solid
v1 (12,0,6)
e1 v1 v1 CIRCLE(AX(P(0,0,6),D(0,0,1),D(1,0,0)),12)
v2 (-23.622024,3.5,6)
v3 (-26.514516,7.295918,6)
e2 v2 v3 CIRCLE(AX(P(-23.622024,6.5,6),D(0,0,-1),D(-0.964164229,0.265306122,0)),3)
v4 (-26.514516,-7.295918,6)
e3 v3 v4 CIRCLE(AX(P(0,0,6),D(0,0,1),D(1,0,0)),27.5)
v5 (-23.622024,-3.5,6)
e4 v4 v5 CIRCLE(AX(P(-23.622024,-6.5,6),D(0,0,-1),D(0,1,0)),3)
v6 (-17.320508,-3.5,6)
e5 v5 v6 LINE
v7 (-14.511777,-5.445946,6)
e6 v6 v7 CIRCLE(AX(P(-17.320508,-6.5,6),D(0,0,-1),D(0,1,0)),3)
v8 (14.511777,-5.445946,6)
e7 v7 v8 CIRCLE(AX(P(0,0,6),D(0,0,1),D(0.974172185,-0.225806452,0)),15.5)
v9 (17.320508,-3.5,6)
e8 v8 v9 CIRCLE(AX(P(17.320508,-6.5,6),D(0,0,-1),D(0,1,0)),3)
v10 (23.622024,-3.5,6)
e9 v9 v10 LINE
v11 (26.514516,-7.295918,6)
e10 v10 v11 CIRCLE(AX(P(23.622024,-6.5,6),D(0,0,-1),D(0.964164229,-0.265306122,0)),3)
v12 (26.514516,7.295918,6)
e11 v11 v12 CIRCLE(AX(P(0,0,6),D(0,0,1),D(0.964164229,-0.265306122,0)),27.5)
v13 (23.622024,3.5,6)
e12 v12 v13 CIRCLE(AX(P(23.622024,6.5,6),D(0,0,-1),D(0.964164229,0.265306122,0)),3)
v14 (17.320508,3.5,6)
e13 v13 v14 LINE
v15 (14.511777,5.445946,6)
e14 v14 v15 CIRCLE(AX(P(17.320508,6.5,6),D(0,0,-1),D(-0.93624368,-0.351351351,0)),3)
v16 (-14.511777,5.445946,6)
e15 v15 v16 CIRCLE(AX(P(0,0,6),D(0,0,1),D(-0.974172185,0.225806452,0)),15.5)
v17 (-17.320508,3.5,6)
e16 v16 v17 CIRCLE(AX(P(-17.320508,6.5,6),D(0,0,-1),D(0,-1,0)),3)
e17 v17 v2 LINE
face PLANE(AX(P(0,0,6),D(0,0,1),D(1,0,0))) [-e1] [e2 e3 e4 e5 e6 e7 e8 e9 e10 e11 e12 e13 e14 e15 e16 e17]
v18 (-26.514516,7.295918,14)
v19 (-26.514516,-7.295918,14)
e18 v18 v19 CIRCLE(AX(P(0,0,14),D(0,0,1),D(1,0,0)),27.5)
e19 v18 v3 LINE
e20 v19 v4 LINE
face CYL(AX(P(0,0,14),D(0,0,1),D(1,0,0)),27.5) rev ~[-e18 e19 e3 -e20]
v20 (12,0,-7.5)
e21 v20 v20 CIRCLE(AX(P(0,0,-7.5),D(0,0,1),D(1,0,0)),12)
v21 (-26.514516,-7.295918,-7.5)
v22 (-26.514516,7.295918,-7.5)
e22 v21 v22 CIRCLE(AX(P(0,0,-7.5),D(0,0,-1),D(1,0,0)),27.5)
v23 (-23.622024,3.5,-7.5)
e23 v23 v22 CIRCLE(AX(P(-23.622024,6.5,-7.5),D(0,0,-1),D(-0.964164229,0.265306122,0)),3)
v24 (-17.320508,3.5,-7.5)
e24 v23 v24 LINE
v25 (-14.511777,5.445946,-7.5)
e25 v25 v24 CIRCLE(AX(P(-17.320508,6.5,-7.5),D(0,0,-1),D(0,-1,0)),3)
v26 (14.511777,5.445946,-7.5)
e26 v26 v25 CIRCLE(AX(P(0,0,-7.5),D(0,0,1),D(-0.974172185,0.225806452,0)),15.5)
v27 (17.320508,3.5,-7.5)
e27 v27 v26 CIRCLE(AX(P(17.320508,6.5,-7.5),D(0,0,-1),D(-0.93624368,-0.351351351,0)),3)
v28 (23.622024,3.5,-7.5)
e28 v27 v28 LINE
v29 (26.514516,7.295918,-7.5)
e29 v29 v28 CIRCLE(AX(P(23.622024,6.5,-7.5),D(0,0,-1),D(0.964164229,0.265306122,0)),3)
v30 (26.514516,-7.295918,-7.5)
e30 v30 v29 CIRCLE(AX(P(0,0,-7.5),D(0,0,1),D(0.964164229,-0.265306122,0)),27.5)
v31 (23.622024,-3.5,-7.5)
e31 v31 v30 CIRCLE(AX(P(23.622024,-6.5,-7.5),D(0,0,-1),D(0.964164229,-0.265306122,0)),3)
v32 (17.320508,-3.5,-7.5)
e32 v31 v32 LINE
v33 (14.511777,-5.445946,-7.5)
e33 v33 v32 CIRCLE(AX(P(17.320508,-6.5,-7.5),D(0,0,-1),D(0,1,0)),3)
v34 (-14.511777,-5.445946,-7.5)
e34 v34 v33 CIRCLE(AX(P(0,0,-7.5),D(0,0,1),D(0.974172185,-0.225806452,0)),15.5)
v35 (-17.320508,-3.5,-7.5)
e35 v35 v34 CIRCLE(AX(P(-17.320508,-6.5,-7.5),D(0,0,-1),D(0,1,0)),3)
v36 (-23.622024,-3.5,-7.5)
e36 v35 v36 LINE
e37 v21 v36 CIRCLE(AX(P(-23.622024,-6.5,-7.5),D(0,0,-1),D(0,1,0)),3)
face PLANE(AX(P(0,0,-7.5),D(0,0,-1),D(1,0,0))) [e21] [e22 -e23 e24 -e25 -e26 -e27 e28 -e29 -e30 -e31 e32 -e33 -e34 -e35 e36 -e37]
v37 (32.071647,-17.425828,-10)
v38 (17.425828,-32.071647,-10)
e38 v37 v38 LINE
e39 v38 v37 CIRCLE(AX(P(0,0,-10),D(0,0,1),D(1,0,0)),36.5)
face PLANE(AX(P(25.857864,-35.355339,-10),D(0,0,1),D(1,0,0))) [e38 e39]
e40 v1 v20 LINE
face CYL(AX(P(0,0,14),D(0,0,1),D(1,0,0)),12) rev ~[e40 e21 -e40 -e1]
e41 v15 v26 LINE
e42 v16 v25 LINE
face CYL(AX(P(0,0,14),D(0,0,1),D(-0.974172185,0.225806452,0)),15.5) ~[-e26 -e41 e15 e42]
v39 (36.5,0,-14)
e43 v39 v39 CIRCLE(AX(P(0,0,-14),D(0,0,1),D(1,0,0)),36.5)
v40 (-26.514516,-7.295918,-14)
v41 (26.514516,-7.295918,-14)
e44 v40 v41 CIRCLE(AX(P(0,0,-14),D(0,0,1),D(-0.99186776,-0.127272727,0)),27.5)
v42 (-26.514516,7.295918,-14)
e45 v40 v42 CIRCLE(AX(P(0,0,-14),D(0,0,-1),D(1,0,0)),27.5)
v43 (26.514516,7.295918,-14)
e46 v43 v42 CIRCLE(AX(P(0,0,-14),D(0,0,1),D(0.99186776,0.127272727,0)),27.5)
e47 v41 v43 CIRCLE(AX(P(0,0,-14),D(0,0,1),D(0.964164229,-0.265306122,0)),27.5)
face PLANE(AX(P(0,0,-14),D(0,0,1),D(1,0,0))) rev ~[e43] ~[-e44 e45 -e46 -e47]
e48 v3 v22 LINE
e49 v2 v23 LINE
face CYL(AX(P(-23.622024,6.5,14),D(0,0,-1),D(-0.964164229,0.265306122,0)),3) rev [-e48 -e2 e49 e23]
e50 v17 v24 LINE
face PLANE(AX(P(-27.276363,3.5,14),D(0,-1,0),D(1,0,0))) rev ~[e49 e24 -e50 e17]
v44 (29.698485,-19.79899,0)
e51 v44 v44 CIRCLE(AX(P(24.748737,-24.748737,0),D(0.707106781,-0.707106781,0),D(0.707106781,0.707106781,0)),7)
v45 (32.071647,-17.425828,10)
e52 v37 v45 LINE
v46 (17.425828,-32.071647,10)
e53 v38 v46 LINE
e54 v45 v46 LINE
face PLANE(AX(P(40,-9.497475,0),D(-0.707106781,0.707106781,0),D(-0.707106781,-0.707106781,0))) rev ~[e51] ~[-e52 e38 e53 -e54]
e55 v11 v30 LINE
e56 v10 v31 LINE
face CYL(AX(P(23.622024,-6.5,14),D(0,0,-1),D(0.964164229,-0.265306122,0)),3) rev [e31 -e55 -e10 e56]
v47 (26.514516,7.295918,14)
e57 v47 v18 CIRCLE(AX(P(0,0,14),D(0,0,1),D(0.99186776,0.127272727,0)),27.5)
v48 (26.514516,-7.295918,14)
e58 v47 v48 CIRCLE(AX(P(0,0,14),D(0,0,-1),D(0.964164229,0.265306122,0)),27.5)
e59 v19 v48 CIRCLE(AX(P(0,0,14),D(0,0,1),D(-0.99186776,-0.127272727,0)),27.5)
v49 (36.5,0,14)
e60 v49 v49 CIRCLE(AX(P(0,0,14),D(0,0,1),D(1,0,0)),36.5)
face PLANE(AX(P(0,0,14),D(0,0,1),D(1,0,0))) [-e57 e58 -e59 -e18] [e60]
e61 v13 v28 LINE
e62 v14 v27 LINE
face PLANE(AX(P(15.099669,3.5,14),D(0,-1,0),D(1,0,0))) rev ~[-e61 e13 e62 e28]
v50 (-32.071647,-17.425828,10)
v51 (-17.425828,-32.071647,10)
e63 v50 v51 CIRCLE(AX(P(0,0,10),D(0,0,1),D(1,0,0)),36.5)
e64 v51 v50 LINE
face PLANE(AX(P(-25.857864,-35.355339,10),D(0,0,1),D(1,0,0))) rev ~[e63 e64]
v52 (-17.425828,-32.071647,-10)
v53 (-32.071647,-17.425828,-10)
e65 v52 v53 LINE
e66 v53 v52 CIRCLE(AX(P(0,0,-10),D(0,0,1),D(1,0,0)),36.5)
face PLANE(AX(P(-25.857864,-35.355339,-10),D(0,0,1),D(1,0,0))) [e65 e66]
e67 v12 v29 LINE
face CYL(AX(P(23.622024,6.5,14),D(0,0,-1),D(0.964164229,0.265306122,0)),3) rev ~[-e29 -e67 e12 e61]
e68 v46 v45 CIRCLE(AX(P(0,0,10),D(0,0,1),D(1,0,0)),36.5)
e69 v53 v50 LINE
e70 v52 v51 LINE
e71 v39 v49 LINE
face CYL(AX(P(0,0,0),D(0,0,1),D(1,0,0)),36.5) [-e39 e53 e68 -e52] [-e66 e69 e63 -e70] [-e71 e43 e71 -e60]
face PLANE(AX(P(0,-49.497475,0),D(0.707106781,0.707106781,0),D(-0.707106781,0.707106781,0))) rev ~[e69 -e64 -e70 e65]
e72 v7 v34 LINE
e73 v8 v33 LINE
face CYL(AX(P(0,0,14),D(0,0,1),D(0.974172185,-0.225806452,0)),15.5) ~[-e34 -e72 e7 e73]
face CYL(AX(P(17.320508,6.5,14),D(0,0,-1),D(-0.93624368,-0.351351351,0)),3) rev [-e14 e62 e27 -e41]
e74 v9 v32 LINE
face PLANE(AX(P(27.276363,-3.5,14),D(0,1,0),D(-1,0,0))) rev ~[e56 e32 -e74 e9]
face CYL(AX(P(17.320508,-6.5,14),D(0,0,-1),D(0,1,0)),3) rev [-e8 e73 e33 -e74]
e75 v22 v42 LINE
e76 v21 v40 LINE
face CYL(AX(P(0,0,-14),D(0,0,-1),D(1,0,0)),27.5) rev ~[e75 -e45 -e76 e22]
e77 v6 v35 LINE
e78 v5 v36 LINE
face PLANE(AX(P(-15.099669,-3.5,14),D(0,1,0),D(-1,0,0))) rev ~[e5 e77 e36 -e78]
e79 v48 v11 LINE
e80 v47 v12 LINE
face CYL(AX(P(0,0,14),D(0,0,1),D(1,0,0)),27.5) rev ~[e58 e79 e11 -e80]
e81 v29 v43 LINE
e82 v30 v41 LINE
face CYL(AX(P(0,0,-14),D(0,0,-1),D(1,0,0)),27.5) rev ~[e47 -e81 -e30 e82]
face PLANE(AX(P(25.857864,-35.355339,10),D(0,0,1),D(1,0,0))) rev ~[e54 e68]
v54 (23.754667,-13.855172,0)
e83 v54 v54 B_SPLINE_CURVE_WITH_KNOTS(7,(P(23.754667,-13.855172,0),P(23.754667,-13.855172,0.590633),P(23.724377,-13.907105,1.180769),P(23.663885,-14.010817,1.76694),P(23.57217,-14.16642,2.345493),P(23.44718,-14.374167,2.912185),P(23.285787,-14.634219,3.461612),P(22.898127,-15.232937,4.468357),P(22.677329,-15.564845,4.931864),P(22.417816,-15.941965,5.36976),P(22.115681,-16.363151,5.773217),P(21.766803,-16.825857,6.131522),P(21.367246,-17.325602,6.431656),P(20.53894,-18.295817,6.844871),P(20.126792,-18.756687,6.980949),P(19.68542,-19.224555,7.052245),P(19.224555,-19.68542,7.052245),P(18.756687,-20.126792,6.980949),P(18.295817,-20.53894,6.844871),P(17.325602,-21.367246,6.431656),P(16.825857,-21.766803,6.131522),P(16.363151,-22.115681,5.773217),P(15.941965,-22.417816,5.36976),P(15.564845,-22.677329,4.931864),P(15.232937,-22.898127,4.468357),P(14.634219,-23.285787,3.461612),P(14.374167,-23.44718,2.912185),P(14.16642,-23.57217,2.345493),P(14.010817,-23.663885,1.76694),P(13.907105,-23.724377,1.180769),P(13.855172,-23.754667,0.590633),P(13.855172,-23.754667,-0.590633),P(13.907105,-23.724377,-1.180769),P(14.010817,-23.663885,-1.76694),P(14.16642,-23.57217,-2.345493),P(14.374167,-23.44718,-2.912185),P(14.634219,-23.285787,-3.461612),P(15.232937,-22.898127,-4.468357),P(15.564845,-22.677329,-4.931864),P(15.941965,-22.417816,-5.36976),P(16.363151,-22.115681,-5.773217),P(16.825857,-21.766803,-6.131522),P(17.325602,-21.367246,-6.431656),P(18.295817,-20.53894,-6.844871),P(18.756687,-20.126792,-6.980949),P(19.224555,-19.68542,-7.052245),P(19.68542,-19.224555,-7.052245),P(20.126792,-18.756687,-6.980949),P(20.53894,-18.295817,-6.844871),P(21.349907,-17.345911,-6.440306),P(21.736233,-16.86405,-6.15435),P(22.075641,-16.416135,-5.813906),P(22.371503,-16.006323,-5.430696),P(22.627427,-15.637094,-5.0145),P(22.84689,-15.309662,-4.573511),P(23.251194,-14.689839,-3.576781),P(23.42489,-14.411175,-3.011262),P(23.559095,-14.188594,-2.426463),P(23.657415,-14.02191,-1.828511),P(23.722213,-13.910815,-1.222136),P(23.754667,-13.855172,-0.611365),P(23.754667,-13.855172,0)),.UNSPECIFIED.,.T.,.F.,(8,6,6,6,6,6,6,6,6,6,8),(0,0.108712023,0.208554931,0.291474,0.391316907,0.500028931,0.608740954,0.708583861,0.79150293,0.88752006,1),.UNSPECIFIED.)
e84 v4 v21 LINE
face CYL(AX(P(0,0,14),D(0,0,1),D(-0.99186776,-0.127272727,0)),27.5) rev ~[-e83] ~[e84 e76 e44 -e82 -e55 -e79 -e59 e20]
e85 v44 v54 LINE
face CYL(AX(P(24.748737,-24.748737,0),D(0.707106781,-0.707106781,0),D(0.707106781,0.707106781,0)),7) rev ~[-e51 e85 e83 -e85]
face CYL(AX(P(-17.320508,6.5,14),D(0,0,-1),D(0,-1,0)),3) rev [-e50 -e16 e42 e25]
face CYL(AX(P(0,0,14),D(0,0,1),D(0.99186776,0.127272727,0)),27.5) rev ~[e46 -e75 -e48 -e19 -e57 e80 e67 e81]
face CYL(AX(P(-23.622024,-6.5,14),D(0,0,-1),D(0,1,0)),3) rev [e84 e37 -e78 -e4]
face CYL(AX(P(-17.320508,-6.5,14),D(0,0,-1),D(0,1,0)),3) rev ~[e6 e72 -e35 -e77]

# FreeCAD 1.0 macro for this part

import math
import FreeCAD as App
import Part
import Sketcher
Q = App.Units.Quantity


def edges_at(feature, points):
    """Names of the edges that pass closest to the given points."""
    edges = feature.Shape.Edges
    near = lambda p: min(range(len(edges)), key=lambda i: edges[i].distToShape(Part.Vertex(*p))[0])
    return sorted({f"Edge{near(p) + 1}" for p in points})

doc = App.newDocument("Part")
body = doc.addObject("PartDesign::Body", "Body")

# Sketch on XY plane
sketch1 = doc.addObject("Sketcher::SketchObject", "Sketch")
body.addObject(sketch1)
sketch1.AttachmentSupport = (doc.XY_Plane, [""])
sketch1.MapMode = "FlatFace"
sketch1.addGeometry(Part.Circle(App.Vector(0, 0, 0), App.Vector(0, 0, 1), 36), False)
sketch1.addConstraint(Sketcher.Constraint("Coincident", 0, 3, -1, 1))
sketch1.addConstraint(Sketcher.Constraint("Diameter", 0, Q("73 mm")))
pad1 = doc.addObject("PartDesign::Pad", "Pad")
body.addObject(pad1)
pad1.Profile = sketch1
pad1.Length = 28
pad1.Midplane = True

# Sketch on XY plane
sketch2 = doc.addObject("Sketcher::SketchObject", "Sketch001")
body.addObject(sketch2)
sketch2.AttachmentSupport = (doc.XY_Plane, [""])
sketch2.MapMode = "FlatFace"
sketch2.AttachmentOffset = App.Placement(App.Vector(0, 0, 14), App.Rotation())
sketch2.addGeometry(Part.LineSegment(App.Vector(-15, -4, 0), App.Vector(-27, -4, 0)), False)
sketch2.addGeometry(Part.ArcOfCircle(Part.Circle(App.Vector(0, 0, 0), App.Vector(0, 0, 1), 28), math.radians(-173), math.radians(-7)), False)
sketch2.addGeometry(Part.LineSegment(App.Vector(27, -4, 0), App.Vector(15, -4, 0)), False)
sketch2.addGeometry(Part.ArcOfCircle(Part.Circle(App.Vector(0, 0, 0), App.Vector(0, 0, 1), 16), math.radians(-167), math.radians(-13)), False)
sketch2.addGeometry(Part.Circle(App.Vector(0, 0, 0), App.Vector(0, 0, 1), 12), False)
sketch2.addGeometry(Part.ArcOfCircle(Part.Circle(App.Vector(0, 0, 0), App.Vector(0, 0, 1), 28), math.radians(7), math.radians(173)), False)
sketch2.addGeometry(Part.LineSegment(App.Vector(-27, 4, 0), App.Vector(-15, 4, 0)), False)
sketch2.addGeometry(Part.ArcOfCircle(Part.Circle(App.Vector(0, 0, 0), App.Vector(0, 0, 1), 16), math.radians(13), math.radians(167)), False)
sketch2.addGeometry(Part.LineSegment(App.Vector(15, 4, 0), App.Vector(27, 4, 0)), False)
sketch2.addConstraint(Sketcher.Constraint("Coincident", 0, 2, 1, 1))
sketch2.addConstraint(Sketcher.Constraint("Coincident", 1, 2, 2, 1))
sketch2.addConstraint(Sketcher.Constraint("Coincident", 2, 2, 3, 2))
sketch2.addConstraint(Sketcher.Constraint("Coincident", 3, 1, 0, 1))
sketch2.addConstraint(Sketcher.Constraint("Coincident", 5, 2, 6, 1))
sketch2.addConstraint(Sketcher.Constraint("Coincident", 6, 2, 7, 2))
sketch2.addConstraint(Sketcher.Constraint("Coincident", 7, 1, 8, 1))
sketch2.addConstraint(Sketcher.Constraint("Coincident", 8, 2, 5, 1))
sketch2.addConstraint(Sketcher.Constraint("Horizontal", 0))
sketch2.addConstraint(Sketcher.Constraint("Horizontal", 2))
sketch2.addConstraint(Sketcher.Constraint("Horizontal", 6))
sketch2.addConstraint(Sketcher.Constraint("Horizontal", 8))
sketch2.addConstraint(Sketcher.Constraint("Coincident", 1, 3, -1, 1))
sketch2.addConstraint(Sketcher.Constraint("Coincident", 3, 3, -1, 1))
sketch2.addConstraint(Sketcher.Constraint("Coincident", 4, 3, -1, 1))
sketch2.addConstraint(Sketcher.Constraint("Coincident", 5, 3, -1, 1))
sketch2.addConstraint(Sketcher.Constraint("Coincident", 7, 3, -1, 1))
sketch2.addConstraint(Sketcher.Constraint("Equal", 1, 5))
sketch2.addConstraint(Sketcher.Constraint("Equal", 3, 7))
sketch2.addConstraint(Sketcher.Constraint("Horizontal", 0, 2, 1, 2))
sketch2.addConstraint(Sketcher.Constraint("Horizontal", 6, 2, 7, 1))
sketch2.addConstraint(Sketcher.Constraint("Vertical", 0, 2, 5, 2))
sketch2.addConstraint(Sketcher.Constraint("Diameter", 4, Q("24 mm")))
sketch2.addConstraint(Sketcher.Constraint("Radius", 1, Q("27.5 mm")))
sketch2.addConstraint(Sketcher.Constraint("Radius", 3, Q("15.5 mm")))
sketch2.addConstraint(Sketcher.Constraint("DistanceY", 0, 2, 5, 2, Q("7 mm")))
pocket1 = doc.addObject("PartDesign::Pocket", "Pocket")
body.addObject(pocket1)
pocket1.Profile = sketch2
pocket1.Type = "ThroughAll"
doc.recompute()

fillet = doc.addObject("PartDesign::Fillet", "Fillet")
body.addObject(fillet)
fillet.Base = (pocket1, edges_at(pocket1, [
    (-27.276, 3.5, 0),
    (-15.1, 3.5, 0),
    (15.1, 3.5, 0),
    (27.276, 3.5, 0),
    (27.276, -3.5, 0),
    (15.1, -3.5, 0),
    (-15.1, -3.5, 0),
    (-27.276, -3.5, 0),
]))
fillet.Radius = 3

# Sketch on XY plane
sketch3 = doc.addObject("Sketcher::SketchObject", "Sketch002")
body.addObject(sketch3)
sketch3.AttachmentSupport = (doc.XY_Plane, [""])
sketch3.MapMode = "FlatFace"
sketch3.AttachmentOffset = App.Placement(App.Vector(0, 0, 14), App.Rotation())
sketch3.addGeometry(Part.Circle(App.Vector(0, 0, 0), App.Vector(0, 0, 1), 28), False)
sketch3.addConstraint(Sketcher.Constraint("Coincident", 0, 3, -1, 1))
sketch3.addConstraint(Sketcher.Constraint("Diameter", 0, Q("55 mm")))
pocket2 = doc.addObject("PartDesign::Pocket", "Pocket001")
body.addObject(pocket2)
pocket2.Profile = sketch3
pocket2.Length = 8

# Sketch on XY plane
sketch4 = doc.addObject("Sketcher::SketchObject", "Sketch003")
body.addObject(sketch4)
sketch4.AttachmentSupport = (doc.XY_Plane, [""])
sketch4.MapMode = "FlatFace"
sketch4.AttachmentOffset = App.Placement(App.Vector(0, 0, -14), App.Rotation())
sketch4.addGeometry(Part.Circle(App.Vector(0, 0, 0), App.Vector(0, 0, 1), 28), False)
sketch4.addConstraint(Sketcher.Constraint("Coincident", 0, 3, -1, 1))
sketch4.addConstraint(Sketcher.Constraint("Diameter", 0, Q("55 mm")))
pocket3 = doc.addObject("PartDesign::Pocket", "Pocket002")
body.addObject(pocket3)
pocket3.Profile = sketch4
pocket3.Length = 6.5
pocket3.Reversed = True

# Sketch on XY plane
sketch5 = doc.addObject("Sketcher::SketchObject", "Sketch004")
body.addObject(sketch5)
sketch5.AttachmentSupport = (doc.XY_Plane, [""])
sketch5.MapMode = "FlatFace"
sketch5.addGeometry(Part.LineSegment(App.Vector(0, -49, 0), App.Vector(-40, -9, 0)), False)
sketch5.addGeometry(Part.LineSegment(App.Vector(-40, -9, 0), App.Vector(-40, -49, 0)), False)
sketch5.addGeometry(Part.LineSegment(App.Vector(-40, -49, 0), App.Vector(0, -49, 0)), False)
sketch5.addGeometry(Part.LineSegment(App.Vector(40, -9, 0), App.Vector(0, -49, 0)), False)
sketch5.addGeometry(Part.LineSegment(App.Vector(0, -49, 0), App.Vector(40, -49, 0)), False)
sketch5.addGeometry(Part.LineSegment(App.Vector(40, -49, 0), App.Vector(40, -9, 0)), False)
sketch5.addConstraint(Sketcher.Constraint("Coincident", 0, 2, 1, 1))
sketch5.addConstraint(Sketcher.Constraint("Coincident", 1, 2, 2, 1))
sketch5.addConstraint(Sketcher.Constraint("Coincident", 2, 2, 0, 1))
sketch5.addConstraint(Sketcher.Constraint("Coincident", 3, 2, 4, 1))
sketch5.addConstraint(Sketcher.Constraint("Coincident", 4, 2, 5, 1))
sketch5.addConstraint(Sketcher.Constraint("Coincident", 5, 2, 3, 1))
sketch5.addConstraint(Sketcher.Constraint("Vertical", 1))
sketch5.addConstraint(Sketcher.Constraint("Horizontal", 2))
sketch5.addConstraint(Sketcher.Constraint("Horizontal", 4))
sketch5.addConstraint(Sketcher.Constraint("Vertical", 5))
sketch5.addConstraint(Sketcher.Constraint("Coincident", 3, 2, 2, 2))
sketch5.addConstraint(Sketcher.Constraint("Symmetric", 0, 2, 5, 2, -2))
sketch5.addConstraint(Sketcher.Constraint("PointOnObject", 2, 2, -2))
sketch5.addConstraint(Sketcher.Constraint("Perpendicular", 0, 3))
sketch5.addConstraint(Sketcher.Constraint("DistanceX", 2, 1, 2, 2, Q("40 mm")))
sketch5.addConstraint(Sketcher.Constraint("DistanceY", 0, 2, -1, 1, Q("9.497475 mm")))
pocket4 = doc.addObject("PartDesign::Pocket", "Pocket003")
body.addObject(pocket4)
pocket4.Profile = sketch5
pocket4.Length = 20
pocket4.Midplane = True

# Sketch on an angled plane
sketch6 = doc.addObject("Sketcher::SketchObject", "Sketch005")
body.addObject(sketch6)
sketch6.Placement = App.Placement(App.Vector(24.748737, -24.748737, 0), App.Rotation(App.Vector(0.707106781, 0.707106781, 0), App.Vector(0, 0, 0.999999999), App.Vector(0.707106781, -0.707106781, 0), "ZXY"))
sketch6.addGeometry(Part.Circle(App.Vector(0, 0, 0), App.Vector(0, 0, 1), 7), False)
sketch6.addConstraint(Sketcher.Constraint("Coincident", 0, 3, -1, 1))
sketch6.addConstraint(Sketcher.Constraint("Diameter", 0, Q("14 mm")))
pocket5 = doc.addObject("PartDesign::Pocket", "Pocket004")
body.addObject(pocket5)
pocket5.Profile = sketch6
pocket5.Length = 10

doc.recompute()
